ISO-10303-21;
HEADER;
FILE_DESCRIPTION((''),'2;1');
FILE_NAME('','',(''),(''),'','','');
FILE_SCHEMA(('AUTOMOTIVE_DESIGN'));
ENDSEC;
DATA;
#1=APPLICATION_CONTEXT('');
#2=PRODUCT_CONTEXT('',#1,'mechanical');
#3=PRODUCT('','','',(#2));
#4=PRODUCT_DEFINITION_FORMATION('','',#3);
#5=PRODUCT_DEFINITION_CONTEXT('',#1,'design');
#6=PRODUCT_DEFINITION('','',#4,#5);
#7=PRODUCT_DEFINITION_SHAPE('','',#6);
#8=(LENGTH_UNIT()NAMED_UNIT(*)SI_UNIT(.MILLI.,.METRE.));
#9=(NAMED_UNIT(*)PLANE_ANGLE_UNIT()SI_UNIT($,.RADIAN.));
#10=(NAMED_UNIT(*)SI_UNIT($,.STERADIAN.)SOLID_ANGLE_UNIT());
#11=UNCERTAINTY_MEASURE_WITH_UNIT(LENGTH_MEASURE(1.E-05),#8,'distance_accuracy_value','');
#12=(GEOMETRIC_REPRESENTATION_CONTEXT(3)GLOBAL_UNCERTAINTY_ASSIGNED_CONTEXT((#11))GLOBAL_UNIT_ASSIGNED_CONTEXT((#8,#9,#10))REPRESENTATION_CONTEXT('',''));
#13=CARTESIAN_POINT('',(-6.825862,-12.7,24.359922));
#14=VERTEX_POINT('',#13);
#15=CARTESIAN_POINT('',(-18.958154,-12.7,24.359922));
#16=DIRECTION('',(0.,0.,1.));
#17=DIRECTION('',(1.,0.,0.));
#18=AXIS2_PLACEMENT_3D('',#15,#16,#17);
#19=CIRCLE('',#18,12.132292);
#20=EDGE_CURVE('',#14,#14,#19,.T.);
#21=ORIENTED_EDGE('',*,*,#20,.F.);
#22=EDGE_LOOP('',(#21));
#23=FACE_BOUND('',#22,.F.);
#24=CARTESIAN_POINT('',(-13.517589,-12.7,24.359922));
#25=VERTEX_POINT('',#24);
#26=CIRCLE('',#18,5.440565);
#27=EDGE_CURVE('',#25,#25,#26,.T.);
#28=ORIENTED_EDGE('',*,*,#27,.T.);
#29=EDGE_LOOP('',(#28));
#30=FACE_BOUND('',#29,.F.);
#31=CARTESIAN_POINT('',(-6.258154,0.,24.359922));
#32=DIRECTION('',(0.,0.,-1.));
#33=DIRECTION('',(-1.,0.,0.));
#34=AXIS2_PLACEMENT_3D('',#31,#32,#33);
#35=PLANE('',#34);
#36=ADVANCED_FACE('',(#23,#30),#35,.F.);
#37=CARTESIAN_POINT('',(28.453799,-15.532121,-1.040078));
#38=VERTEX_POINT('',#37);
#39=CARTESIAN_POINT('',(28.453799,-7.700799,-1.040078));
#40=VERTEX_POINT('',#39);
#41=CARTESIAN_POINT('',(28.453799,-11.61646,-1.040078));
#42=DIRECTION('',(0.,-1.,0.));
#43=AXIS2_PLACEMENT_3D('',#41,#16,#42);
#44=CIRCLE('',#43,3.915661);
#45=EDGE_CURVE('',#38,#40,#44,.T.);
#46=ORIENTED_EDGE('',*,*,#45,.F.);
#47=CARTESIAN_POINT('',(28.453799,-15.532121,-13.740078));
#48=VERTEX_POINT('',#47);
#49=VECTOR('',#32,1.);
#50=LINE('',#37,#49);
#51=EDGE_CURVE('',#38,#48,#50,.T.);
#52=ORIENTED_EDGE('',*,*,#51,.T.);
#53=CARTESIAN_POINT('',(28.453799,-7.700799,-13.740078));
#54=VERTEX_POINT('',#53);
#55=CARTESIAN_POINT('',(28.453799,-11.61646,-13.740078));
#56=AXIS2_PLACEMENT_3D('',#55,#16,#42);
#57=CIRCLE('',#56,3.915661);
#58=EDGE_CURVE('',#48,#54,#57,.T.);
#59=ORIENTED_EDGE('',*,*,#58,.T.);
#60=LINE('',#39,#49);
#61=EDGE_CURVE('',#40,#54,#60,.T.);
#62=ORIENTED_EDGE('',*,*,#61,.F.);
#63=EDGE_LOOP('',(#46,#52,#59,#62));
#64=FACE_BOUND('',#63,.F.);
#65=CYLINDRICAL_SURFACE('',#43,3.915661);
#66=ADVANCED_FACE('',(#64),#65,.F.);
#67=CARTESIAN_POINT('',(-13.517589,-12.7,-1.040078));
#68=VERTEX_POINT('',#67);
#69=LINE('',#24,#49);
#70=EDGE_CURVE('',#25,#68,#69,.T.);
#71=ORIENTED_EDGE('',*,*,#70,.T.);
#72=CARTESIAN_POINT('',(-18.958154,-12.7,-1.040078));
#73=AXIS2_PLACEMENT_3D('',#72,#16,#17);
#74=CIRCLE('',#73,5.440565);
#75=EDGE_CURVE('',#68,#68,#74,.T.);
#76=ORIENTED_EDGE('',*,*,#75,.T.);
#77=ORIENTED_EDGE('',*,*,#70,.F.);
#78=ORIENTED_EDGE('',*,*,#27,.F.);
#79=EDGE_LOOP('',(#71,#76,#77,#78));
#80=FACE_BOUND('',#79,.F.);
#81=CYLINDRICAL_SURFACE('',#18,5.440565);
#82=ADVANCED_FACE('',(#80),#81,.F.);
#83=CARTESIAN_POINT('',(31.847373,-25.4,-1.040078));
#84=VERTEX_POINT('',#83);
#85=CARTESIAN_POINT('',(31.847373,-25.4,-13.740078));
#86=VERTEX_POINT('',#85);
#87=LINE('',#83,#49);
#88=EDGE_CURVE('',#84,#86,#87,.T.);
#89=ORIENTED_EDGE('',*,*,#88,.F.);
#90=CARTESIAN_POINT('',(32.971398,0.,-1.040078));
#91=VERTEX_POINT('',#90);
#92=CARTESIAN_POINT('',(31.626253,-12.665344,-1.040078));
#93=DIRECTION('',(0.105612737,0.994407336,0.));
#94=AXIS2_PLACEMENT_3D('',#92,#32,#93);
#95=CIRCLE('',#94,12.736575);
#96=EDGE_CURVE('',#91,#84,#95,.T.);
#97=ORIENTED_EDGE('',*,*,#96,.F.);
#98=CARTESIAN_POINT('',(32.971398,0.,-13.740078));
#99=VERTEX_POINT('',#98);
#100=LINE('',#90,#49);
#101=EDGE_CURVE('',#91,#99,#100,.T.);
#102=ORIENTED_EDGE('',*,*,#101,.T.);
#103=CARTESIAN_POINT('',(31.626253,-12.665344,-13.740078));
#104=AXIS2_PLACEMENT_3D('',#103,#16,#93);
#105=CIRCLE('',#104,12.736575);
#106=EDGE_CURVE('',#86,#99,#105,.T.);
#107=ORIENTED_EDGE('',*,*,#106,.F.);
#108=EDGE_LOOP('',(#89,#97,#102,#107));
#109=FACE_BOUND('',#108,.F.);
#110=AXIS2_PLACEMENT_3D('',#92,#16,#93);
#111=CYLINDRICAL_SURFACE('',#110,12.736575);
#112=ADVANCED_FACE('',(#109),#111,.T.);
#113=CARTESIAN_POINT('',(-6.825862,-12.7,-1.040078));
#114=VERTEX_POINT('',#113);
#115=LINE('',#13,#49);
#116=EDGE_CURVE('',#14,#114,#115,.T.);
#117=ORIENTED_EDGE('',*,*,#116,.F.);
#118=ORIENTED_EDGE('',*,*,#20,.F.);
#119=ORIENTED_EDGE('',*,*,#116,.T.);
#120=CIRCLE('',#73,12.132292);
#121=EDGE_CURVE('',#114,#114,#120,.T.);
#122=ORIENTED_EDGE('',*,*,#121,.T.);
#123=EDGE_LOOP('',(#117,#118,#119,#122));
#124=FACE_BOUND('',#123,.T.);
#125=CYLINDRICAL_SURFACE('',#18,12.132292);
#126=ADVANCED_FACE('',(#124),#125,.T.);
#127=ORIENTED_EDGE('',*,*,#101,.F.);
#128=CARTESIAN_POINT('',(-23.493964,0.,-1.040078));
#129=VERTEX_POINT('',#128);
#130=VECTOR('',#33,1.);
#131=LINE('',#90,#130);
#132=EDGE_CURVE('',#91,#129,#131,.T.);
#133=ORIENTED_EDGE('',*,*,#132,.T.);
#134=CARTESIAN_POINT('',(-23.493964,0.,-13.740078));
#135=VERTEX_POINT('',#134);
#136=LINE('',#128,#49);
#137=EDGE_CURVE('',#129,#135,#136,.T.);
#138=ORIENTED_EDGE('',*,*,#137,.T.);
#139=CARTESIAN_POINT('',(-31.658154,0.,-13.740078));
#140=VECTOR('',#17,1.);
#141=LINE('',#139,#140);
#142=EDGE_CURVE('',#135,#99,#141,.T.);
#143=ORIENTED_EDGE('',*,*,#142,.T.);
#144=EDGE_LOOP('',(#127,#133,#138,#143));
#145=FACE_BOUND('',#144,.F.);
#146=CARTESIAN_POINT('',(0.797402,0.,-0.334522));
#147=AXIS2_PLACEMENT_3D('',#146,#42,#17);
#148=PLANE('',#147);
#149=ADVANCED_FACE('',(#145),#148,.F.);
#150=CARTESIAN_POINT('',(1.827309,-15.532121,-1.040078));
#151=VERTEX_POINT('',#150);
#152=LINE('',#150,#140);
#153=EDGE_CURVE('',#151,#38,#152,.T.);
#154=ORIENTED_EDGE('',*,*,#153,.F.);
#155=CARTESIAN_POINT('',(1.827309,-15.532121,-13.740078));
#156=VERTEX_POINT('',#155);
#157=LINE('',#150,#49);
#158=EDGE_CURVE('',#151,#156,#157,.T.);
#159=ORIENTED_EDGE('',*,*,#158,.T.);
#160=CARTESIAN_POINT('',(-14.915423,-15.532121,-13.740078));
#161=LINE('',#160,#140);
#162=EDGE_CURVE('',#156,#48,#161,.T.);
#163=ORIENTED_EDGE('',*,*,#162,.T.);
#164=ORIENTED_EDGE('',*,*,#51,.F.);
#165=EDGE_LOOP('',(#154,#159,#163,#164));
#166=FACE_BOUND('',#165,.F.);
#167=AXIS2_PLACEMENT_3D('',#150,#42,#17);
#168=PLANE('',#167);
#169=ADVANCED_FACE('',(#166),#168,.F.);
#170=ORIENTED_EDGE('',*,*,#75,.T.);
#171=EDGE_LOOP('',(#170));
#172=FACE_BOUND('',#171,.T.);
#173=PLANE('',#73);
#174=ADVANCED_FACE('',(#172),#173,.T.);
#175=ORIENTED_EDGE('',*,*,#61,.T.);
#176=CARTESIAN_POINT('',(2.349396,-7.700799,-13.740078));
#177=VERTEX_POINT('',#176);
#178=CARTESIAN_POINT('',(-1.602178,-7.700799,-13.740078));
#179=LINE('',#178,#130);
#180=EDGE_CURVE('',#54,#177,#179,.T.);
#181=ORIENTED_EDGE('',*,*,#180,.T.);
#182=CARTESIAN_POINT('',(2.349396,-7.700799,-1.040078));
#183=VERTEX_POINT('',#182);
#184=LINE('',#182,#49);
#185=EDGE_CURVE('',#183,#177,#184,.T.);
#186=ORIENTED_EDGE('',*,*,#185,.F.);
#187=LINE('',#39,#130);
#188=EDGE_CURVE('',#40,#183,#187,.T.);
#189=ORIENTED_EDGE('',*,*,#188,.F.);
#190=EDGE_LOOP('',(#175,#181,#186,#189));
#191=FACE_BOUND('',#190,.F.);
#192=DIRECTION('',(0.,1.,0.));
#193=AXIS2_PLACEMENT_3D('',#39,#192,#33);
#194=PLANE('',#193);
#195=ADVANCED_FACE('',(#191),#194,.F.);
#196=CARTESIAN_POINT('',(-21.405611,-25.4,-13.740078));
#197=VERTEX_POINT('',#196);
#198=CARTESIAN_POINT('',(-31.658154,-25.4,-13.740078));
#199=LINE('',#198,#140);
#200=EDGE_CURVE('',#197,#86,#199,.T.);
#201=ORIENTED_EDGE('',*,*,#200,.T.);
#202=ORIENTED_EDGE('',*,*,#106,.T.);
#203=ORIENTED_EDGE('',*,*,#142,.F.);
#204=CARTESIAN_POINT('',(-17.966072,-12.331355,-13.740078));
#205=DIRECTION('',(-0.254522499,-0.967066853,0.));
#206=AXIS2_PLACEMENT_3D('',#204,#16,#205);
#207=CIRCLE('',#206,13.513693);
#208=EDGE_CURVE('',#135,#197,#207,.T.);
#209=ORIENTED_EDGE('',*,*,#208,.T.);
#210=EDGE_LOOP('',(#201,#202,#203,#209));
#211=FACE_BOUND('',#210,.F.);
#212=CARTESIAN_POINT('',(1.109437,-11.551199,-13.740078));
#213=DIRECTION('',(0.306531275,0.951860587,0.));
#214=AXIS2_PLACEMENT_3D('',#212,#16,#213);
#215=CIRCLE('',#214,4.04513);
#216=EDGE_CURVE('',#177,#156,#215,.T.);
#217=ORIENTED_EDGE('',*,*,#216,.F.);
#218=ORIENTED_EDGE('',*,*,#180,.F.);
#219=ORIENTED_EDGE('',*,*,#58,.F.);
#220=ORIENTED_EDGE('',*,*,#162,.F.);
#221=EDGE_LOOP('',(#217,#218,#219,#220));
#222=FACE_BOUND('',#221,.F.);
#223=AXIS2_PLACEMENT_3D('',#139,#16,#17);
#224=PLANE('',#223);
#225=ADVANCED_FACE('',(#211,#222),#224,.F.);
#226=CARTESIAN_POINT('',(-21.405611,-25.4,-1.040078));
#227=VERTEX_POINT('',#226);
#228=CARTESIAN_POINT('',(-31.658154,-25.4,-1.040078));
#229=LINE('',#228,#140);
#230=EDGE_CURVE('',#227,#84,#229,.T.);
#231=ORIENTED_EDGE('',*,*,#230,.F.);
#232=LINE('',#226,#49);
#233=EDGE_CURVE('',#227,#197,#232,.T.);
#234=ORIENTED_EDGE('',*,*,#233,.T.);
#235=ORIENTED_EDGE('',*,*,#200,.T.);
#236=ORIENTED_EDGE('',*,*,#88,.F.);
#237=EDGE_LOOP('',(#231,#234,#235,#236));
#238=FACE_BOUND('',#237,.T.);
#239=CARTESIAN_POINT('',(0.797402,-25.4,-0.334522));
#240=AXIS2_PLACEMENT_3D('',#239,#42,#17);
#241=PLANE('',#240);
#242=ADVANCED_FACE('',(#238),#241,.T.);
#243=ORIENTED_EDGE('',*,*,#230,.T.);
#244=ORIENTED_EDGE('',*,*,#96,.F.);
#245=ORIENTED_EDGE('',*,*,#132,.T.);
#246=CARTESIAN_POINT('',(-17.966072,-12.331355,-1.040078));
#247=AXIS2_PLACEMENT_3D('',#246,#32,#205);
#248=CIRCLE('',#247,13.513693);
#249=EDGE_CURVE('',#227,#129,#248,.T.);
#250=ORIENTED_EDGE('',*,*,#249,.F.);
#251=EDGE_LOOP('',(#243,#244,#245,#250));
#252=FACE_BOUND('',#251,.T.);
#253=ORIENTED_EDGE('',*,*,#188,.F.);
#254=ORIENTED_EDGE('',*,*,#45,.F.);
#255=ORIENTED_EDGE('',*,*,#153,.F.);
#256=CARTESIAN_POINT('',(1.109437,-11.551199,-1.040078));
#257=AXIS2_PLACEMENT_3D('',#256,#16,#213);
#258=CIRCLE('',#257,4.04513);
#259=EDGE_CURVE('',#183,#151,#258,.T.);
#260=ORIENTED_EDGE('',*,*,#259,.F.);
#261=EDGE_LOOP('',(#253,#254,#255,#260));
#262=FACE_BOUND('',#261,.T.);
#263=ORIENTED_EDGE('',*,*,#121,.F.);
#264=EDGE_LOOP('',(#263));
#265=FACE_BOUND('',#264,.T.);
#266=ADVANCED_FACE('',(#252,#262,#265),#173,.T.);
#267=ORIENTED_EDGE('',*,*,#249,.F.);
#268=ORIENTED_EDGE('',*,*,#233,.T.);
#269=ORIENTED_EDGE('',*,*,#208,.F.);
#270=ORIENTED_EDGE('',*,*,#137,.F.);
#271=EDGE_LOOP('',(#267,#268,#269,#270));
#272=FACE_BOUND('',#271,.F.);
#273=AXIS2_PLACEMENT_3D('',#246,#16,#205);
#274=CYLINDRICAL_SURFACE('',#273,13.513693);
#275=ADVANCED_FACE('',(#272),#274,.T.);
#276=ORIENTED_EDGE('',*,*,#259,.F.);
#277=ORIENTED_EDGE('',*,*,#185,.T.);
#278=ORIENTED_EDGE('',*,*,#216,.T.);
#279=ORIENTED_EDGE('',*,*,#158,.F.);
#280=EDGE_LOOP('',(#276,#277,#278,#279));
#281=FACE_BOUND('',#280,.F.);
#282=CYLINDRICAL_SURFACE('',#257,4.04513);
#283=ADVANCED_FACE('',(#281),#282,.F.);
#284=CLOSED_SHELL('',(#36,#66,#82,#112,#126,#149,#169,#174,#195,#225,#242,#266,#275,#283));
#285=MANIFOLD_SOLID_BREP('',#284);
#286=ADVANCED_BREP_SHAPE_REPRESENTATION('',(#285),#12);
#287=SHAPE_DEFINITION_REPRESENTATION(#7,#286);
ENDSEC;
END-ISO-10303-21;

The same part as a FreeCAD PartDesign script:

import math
import FreeCAD as App
import Part
import Sketcher

V = App.Vector
Q = App.Units.Quantity

doc = App.newDocument("Part")
body = doc.addObject("PartDesign::Body", "Body")

# Sketch on XZ plane
sketch1 = body.newObject("Sketcher::SketchObject", "Sketch")
sketch1.AttachmentSupport = (doc.getObject("XZ_Plane"), [""])
sketch1.MapMode = "FlatFace"
sketch1.addGeometry([
    Part.LineSegment(V(-6, 24, 0), V(-32, 24, 0)),  # 0
    Part.LineSegment(V(-32, 24, 0), V(-32, -14, 0)),  # 1
    Part.LineSegment(V(-32, -14, 0), V(45, -14, 0)),  # 2
    Part.LineSegment(V(45, -14, 0), V(45, -1, 0)),  # 3
    Part.LineSegment(V(45, -1, 0), V(-6, -1, 0)),  # 4
    Part.LineSegment(V(-6, -1, 0), V(-6, 24, 0)),  # 5
], False)
sketch1.addConstraint([
    Sketcher.Constraint("Coincident", 0, 2, 1, 1),
    Sketcher.Constraint("Coincident", 1, 2, 2, 1),
    Sketcher.Constraint("Coincident", 2, 2, 3, 1),
    Sketcher.Constraint("Coincident", 3, 2, 4, 1),
    Sketcher.Constraint("Coincident", 4, 2, 5, 1),
    Sketcher.Constraint("Coincident", 5, 2, 0, 1),
    Sketcher.Constraint("Horizontal", 0),
    Sketcher.Constraint("Vertical", 1),
    Sketcher.Constraint("Horizontal", 2),
    Sketcher.Constraint("Vertical", 3),
    Sketcher.Constraint("Horizontal", 4),
    Sketcher.Constraint("Vertical", 5),
    Sketcher.Constraint("Equal", 0, 5),
    Sketcher.Constraint("DistanceX", 0, 2, 0, 1, Q("1 in")),
    Sketcher.Constraint("DistanceX", 2, 1, 2, 2, Q("3 in")),
    Sketcher.Constraint("DistanceY", 1, 2, 1, 1, Q("1.5 in")),
    Sketcher.Constraint("DistanceY", 3, 2, -1, 1, 1.040078),
    Sketcher.Constraint("DistanceX", 0, 2, -1, 1, 31.658154),
])
pad1 = body.newObject("PartDesign::Pad", "Pad")
pad1.Profile = sketch1
pad1.Length = Q("1 in")

# Sketch on XY plane
sketch2 = body.newObject("Sketcher::SketchObject", "Sketch001")
sketch2.AttachmentSupport = (doc.getObject("XY_Plane"), [""])
sketch2.MapMode = "FlatFace"
sketch2.AttachmentOffset = App.Placement(V(0, 0, -1.040078), App.Rotation())
sketch2.addGeometry([
    Part.ArcOfCircle(Part.Circle(V(32, -13, 0), V(0, 0, 1), 13), math.radians(-89), math.radians(84)),
    Part.LineSegment(V(32, -25, 0), V(45, -25, 0)),
    Part.LineSegment(V(45, -25, 0), V(45, 0, 0)),
    Part.LineSegment(V(45, 0, 0), V(33, 0, 0)),
], False)
sketch2.addConstraint([
    Sketcher.Constraint("Coincident", 0, 1, 1, 1),
    Sketcher.Constraint("Coincident", 1, 2, 2, 1),
    Sketcher.Constraint("Coincident", 2, 2, 3, 1),
    Sketcher.Constraint("Coincident", 3, 2, 0, 2),
    Sketcher.Constraint("Horizontal", 1),
    Sketcher.Constraint("Vertical", 2),
    Sketcher.Constraint("Horizontal", 3),
    Sketcher.Constraint("PointOnObject", 2, 2, -1),
    Sketcher.Constraint("DistanceY", 2, 1, 2, 2, Q("1 in")),
    Sketcher.Constraint("Radius", 0, 12.736575),
    Sketcher.Constraint("DistanceX", 1, 1, 1, 2, 12.694473),
    Sketcher.Constraint("DistanceX", 3, 2, 3, 1, 11.570448),
    Sketcher.Constraint("DistanceX", -1, 1, 0, 3, 31.626253),
])
pocket1 = body.newObject("PartDesign::Pocket", "Pocket")
pocket1.Profile = sketch2
pocket1.Length = Q("1 in")

# Sketch on XY plane
sketch3 = body.newObject("Sketcher::SketchObject", "Sketch002")
sketch3.AttachmentSupport = (doc.getObject("XY_Plane"), [""])
sketch3.MapMode = "FlatFace"
sketch3.AttachmentOffset = App.Placement(V(0, 0, 24.359922), App.Rotation())
sketch3.addGeometry([
    Part.LineSegment(V(-32, 0, 0), V(-32, -25, 0)),  # 0
    Part.LineSegment(V(-32, -25, 0), V(-6, -25, 0)),  # 1
    Part.LineSegment(V(-6, -25, 0), V(-6, 0, 0)),  # 2
    Part.LineSegment(V(-6, 0, 0), V(-32, 0, 0)),  # 3
    Part.Circle(V(-19, -13, 0), V(0, 0, 1), 12),  # 4
    Part.Circle(V(-19, -13, 0), V(0, 0, 1), 5),  # 5
], False)
sketch3.addConstraint([
    Sketcher.Constraint("Coincident", 0, 2, 1, 1),
    Sketcher.Constraint("Coincident", 1, 2, 2, 1),
    Sketcher.Constraint("Coincident", 2, 2, 3, 1),
    Sketcher.Constraint("Coincident", 3, 2, 0, 1),
    Sketcher.Constraint("Vertical", 0),
    Sketcher.Constraint("Horizontal", 1),
    Sketcher.Constraint("Vertical", 2),
    Sketcher.Constraint("Horizontal", 3),
    Sketcher.Constraint("Coincident", 5, 3, 4, 3),
    Sketcher.Constraint("PointOnObject", 2, 2, -1),
    Sketcher.Constraint("Equal", 3, 0),
    Sketcher.Constraint("DistanceX", 1, 1, 1, 2, Q("1 in")),
    Sketcher.Constraint("DistanceY", 4, 3, -1, 1, Q("0.5 in")),
    Sketcher.Constraint("DistanceX", 0, 2, 4, 3, Q("0.5 in")),
    Sketcher.Constraint("Diameter", 5, 10.88113),
    Sketcher.Constraint("Diameter", 4, 24.264584),
    Sketcher.Constraint("DistanceX", 4, 3, -1, 1, 18.958154),
])
pocket2 = body.newObject("PartDesign::Pocket", "Pocket001")
pocket2.Profile = sketch3
pocket2.Length = Q("1 in")

# Sketch on XY plane
sketch4 = body.newObject("Sketcher::SketchObject", "Sketch003")
sketch4.AttachmentSupport = (doc.getObject("XY_Plane"), [""])
sketch4.MapMode = "FlatFace"
sketch4.AttachmentOffset = App.Placement(V(0, 0, -1.040078), App.Rotation())
sketch4.addGeometry([
    Part.LineSegment(V(-23, 0, 0), V(-32, 0, 0)),
    Part.LineSegment(V(-32, 0, 0), V(-32, -25, 0)),
    Part.LineSegment(V(-32, -25, 0), V(-21, -25, 0)),
    Part.ArcOfCircle(Part.Circle(V(-18, -12, 0), V(0, 0, 1), 14), math.radians(114), math.radians(255)),
], False)
sketch4.addConstraint([
    Sketcher.Constraint("Coincident", 0, 2, 1, 1),
    Sketcher.Constraint("Coincident", 1, 2, 2, 1),
    Sketcher.Constraint("Coincident", 2, 2, 3, 2),
    Sketcher.Constraint("Coincident", 3, 1, 0, 1),
    Sketcher.Constraint("Horizontal", 0),
    Sketcher.Constraint("Vertical", 1),
    Sketcher.Constraint("Horizontal", 2),
    Sketcher.Constraint("PointOnObject", 0, 2, -1),
    Sketcher.Constraint("DistanceY", 1, 2, 1, 1, Q("1 in")),
    Sketcher.Constraint("Radius", 3, 13.513693),
    Sketcher.Constraint("DistanceX", 0, 2, 0, 1, 8.16419),
    Sketcher.Constraint("DistanceX", 2, 1, 2, 2, 10.252543),
    Sketcher.Constraint("DistanceX", 3, 3, -1, 1, 17.966072),
])
pocket3 = body.newObject("PartDesign::Pocket", "Pocket002")
pocket3.Profile = sketch4
pocket3.Length = Q("1 in")

# Sketch on XY plane
sketch5 = body.newObject("Sketcher::SketchObject", "Sketch004")
sketch5.AttachmentSupport = (doc.getObject("XY_Plane"), [""])
sketch5.MapMode = "FlatFace"
sketch5.AttachmentOffset = App.Placement(V(0, 0, -1.040078), App.Rotation())
sketch5.addGeometry([
    Part.LineSegment(V(28.5, -7.7, 0), V(2.3, -7.7, 0)),
    Part.ArcOfCircle(Part.Circle(V(1.1, -11.6, 0), V(0, 0, 1), 4), math.radians(72), math.radians(280)),
    Part.LineSegment(V(1.8, -15.5, 0), V(28.5, -15.5, 0)),
    Part.ArcOfCircle(Part.Circle(V(28.5, -11.6, 0), V(0, 0, 1), 3.9), math.radians(-90), math.radians(90)),
], False)
sketch5.addConstraint([
    Sketcher.Constraint("Coincident", 0, 2, 1, 1),
    Sketcher.Constraint("Coincident", 1, 2, 2, 1),
    Sketcher.Constraint("Tangent", 2, 2, 3, 1),
    Sketcher.Constraint("Tangent", 3, 2, 0, 1),
    Sketcher.Constraint("Horizontal", 0),
    Sketcher.Constraint("Horizontal", 2),
    Sketcher.Constraint("Radius", 1, 4.04513),
    Sketcher.Constraint("Radius", 3, 3.915661),
    Sketcher.Constraint("DistanceX", 2, 1, 2, 2, 26.62649),
    Sketcher.Constraint("DistanceY", 1, 3, -1, 1, 11.551199),
    Sketcher.Constraint("DistanceX", -1, 1, 3, 3, 28.453799),
    Sketcher.Constraint("DistanceY", 0, 2, -1, 1, 7.700799),
])
pocket4 = body.newObject("PartDesign::Pocket", "Pocket003")
pocket4.Profile = sketch5
pocket4.Length = Q("1 in")

doc.recompute()
